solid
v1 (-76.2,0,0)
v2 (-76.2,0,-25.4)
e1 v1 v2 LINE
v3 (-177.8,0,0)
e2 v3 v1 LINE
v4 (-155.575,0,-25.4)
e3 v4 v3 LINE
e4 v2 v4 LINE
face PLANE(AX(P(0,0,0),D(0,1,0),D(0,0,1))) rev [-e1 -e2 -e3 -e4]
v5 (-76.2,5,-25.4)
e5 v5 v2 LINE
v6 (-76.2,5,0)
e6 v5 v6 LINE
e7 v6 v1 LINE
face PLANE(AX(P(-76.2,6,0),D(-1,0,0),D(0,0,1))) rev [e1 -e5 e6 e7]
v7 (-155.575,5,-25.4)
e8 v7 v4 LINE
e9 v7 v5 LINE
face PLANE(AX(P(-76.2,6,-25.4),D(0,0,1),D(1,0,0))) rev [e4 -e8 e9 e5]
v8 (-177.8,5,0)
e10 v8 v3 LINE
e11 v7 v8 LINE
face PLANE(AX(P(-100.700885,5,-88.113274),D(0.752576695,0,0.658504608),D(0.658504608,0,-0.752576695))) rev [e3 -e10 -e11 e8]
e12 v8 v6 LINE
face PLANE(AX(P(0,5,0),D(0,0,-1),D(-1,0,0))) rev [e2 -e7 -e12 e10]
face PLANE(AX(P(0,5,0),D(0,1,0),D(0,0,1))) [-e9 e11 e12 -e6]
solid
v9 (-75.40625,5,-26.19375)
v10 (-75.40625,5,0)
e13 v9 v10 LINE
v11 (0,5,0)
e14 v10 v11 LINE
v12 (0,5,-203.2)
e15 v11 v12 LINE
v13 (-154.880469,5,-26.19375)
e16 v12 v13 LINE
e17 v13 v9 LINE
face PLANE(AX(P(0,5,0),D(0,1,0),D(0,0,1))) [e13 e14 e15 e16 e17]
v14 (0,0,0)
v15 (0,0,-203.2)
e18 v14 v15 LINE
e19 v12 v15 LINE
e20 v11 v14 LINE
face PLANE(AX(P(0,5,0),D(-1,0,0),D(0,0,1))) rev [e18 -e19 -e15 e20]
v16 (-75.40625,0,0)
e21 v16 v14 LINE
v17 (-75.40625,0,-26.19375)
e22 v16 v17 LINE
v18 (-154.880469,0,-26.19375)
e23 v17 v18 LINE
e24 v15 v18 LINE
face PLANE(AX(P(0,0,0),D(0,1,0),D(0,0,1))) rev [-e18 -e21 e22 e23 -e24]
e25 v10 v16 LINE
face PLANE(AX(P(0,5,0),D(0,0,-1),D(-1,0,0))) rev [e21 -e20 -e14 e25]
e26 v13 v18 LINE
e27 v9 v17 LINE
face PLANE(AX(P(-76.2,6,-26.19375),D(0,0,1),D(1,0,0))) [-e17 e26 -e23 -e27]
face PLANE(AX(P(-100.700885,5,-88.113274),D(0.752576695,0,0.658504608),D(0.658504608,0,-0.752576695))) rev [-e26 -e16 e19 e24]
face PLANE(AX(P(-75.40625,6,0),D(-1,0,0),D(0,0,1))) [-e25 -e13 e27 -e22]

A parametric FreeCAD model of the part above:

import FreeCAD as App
import Part
import Sketcher
Q = App.Units.Quantity

doc = App.newDocument("Part")
body = doc.addObject("PartDesign::Body", "Body")
body.AllowCompound = True

sketch1 = body.newObject("Sketcher::SketchObject", "Sketch")
sketch1.AttachmentSupport = (doc.getObject("XZ_Plane"), [""])
sketch1.MapMode = "FlatFace"
sketch1.addGeometry(Part.LineSegment(App.Vector(0, 0, 0), App.Vector(0, -203, 0)), False)
sketch1.addGeometry(Part.LineSegment(App.Vector(0, -203, 0), App.Vector(-178, 0, 0)), False)
sketch1.addGeometry(Part.LineSegment(App.Vector(-178, 0, 0), App.Vector(0, 0, 0)), False)
sketch1.addConstraint(Sketcher.Constraint("Coincident", 0, 2, 1, 1))
sketch1.addConstraint(Sketcher.Constraint("Coincident", 1, 2, 2, 1))
sketch1.addConstraint(Sketcher.Constraint("Coincident", 2, 2, 0, 1))
sketch1.addConstraint(Sketcher.Constraint("Vertical", 0))
sketch1.addConstraint(Sketcher.Constraint("Horizontal", 2))
sketch1.addConstraint(Sketcher.Constraint("Coincident", 2, 2, -1, 1))
sketch1.addConstraint(Sketcher.Constraint("DistanceX", 2, 1, 2, 2, Q("7 in")))
sketch1.addConstraint(Sketcher.Constraint("DistanceY", 0, 2, 0, 1, Q("8 in")))
pad1 = body.newObject("PartDesign::Pad", "Pad")
pad1.Profile = sketch1
pad1.Length = 5
pad1.Reversed = True

sketch2 = body.newObject("Sketcher::SketchObject", "Sketch001")
sketch2.AttachmentSupport = (doc.getObject("XZ_Plane"), [""])
sketch2.MapMode = "FlatFace"
sketch2.addGeometry(Part.LineSegment(App.Vector(1, 1, 0), App.Vector(1, -205, 0)), False)
sketch2.addGeometry(Part.LineSegment(App.Vector(1, -205, 0), App.Vector(-180, 1, 0)), False)
sketch2.addGeometry(Part.LineSegment(App.Vector(-180, 1, 0), App.Vector(1, 1, 0)), False)
sketch2.addGeometry(Part.LineSegment(App.Vector(0, -203, 0), App.Vector(0, 0, 0)), False)
sketch2.addGeometry(Part.LineSegment(App.Vector(0, 0, 0), App.Vector(-75, 0, 0)), False)
sketch2.addGeometry(Part.LineSegment(App.Vector(-75, 0, 0), App.Vector(-75, -26, 0)), False)
sketch2.addGeometry(Part.LineSegment(App.Vector(-75, -26, 0), App.Vector(-155, -26, 0)), False)
sketch2.addGeometry(Part.LineSegment(App.Vector(-155, -26, 0), App.Vector(0, -203, 0)), False)
sketch2.addGeometry(Part.LineSegment(App.Vector(-178, 0, 0), App.Vector(-156, -25, 0)), False)
sketch2.addGeometry(Part.LineSegment(App.Vector(-156, -25, 0), App.Vector(-76, -25, 0)), False)
sketch2.addGeometry(Part.LineSegment(App.Vector(-76, -25, 0), App.Vector(-76, 0, 0)), False)
sketch2.addGeometry(Part.LineSegment(App.Vector(-76, 0, 0), App.Vector(-178, 0, 0)), False)
sketch2.addConstraint(Sketcher.Constraint("Coincident", 0, 2, 1, 1))
sketch2.addConstraint(Sketcher.Constraint("Coincident", 1, 2, 2, 1))
sketch2.addConstraint(Sketcher.Constraint("Coincident", 2, 2, 0, 1))
sketch2.addConstraint(Sketcher.Constraint("Coincident", 3, 2, 4, 1))
sketch2.addConstraint(Sketcher.Constraint("Coincident", 4, 2, 5, 1))
sketch2.addConstraint(Sketcher.Constraint("Coincident", 5, 2, 6, 1))
sketch2.addConstraint(Sketcher.Constraint("Coincident", 6, 2, 7, 1))
sketch2.addConstraint(Sketcher.Constraint("Coincident", 7, 2, 3, 1))
sketch2.addConstraint(Sketcher.Constraint("Coincident", 8, 2, 9, 1))
sketch2.addConstraint(Sketcher.Constraint("Coincident", 9, 2, 10, 1))
sketch2.addConstraint(Sketcher.Constraint("Coincident", 10, 2, 11, 1))
sketch2.addConstraint(Sketcher.Constraint("Coincident", 11, 2, 8, 1))
sketch2.addConstraint(Sketcher.Constraint("Vertical", 0))
sketch2.addConstraint(Sketcher.Constraint("Horizontal", 2))
sketch2.addConstraint(Sketcher.Constraint("Vertical", 3))
sketch2.addConstraint(Sketcher.Constraint("Horizontal", 4))
sketch2.addConstraint(Sketcher.Constraint("Vertical", 5))
sketch2.addConstraint(Sketcher.Constraint("Horizontal", 6))
sketch2.addConstraint(Sketcher.Constraint("Horizontal", 9))
sketch2.addConstraint(Sketcher.Constraint("Vertical", 10))
sketch2.addConstraint(Sketcher.Constraint("Horizontal", 11))
sketch2.addConstraint(Sketcher.Constraint("Coincident", 3, 2, -1, 1))
sketch2.addConstraint(Sketcher.Constraint("PointOnObject", 10, 2, -1))
sketch2.addConstraint(Sketcher.Constraint("Parallel", 1, 7))
sketch2.addConstraint(Sketcher.Constraint("Parallel", 7, 8))
sketch2.addConstraint(Sketcher.Constraint("DistanceX", 11, 2, 11, 1, Q("4 in")))
sketch2.addConstraint(Sketcher.Constraint("DistanceY", 3, 1, 3, 2, Q("8 in")))
sketch2.addConstraint(Sketcher.Constraint("DistanceY", 10, 1, 10, 2, Q("1 in")))
sketch2.addConstraint(Sketcher.Constraint("DistanceX", 9, 2, -1, 1, Q("3 in")))
sketch2.addConstraint(Sketcher.Constraint("DistanceX", 4, 2, 2, 2, Q("3 in")))
sketch2.addConstraint(Sketcher.Constraint("DistanceX", 4, 2, 4, 1, Q("2.96875 in")))
sketch2.addConstraint(Sketcher.Constraint("DistanceX", 9, 1, 9, 2, Q("3.125 in")))
sketch2.addConstraint(Sketcher.Constraint("DistanceY", 5, 2, 5, 1, Q("1.03125 in")))
sketch2.addConstraint(Sketcher.Constraint("DistanceY", -1, 1, 1, 2, Q("0.03125 in")))
sketch2.addConstraint(Sketcher.Constraint("DistanceX", 2, 1, 2, 2, Q("180.342991 mm")))
pocket1 = body.newObject("PartDesign::Pocket", "Pocket")
pocket1.Profile = sketch2
pocket1.Length = 6

doc.recompute()
